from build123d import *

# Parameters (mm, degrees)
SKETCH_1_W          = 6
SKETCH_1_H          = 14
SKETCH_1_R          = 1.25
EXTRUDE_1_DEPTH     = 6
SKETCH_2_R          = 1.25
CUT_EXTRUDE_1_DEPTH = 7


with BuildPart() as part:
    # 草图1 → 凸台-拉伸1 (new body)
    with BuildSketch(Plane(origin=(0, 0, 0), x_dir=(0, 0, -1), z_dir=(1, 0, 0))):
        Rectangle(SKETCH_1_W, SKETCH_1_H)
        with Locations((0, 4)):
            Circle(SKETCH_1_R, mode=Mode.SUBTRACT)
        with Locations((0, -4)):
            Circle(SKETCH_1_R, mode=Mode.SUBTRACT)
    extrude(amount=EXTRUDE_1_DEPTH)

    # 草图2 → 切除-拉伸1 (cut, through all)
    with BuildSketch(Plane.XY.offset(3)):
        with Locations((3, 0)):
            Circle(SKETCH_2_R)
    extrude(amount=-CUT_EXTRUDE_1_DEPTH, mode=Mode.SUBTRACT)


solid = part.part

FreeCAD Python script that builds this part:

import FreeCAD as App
import Part
import Sketcher
Q = App.Units.Quantity

doc = App.newDocument("Part")
body = doc.addObject("PartDesign::Body", "Body")

sketch1 = body.newObject("Sketcher::SketchObject", "Sketch")
sketch1.AttachmentSupport = (doc.getObject("YZ_Plane"), [""])
sketch1.MapMode = "FlatFace"
sketch1.addGeometry(Part.LineSegment(App.Vector(7, 3, 0), App.Vector(-7, 3, 0)), False)
sketch1.addGeometry(Part.LineSegment(App.Vector(-7, 3, 0), App.Vector(-7, -3, 0)), False)
sketch1.addGeometry(Part.LineSegment(App.Vector(-7, -3, 0), App.Vector(7, -3, 0)), False)
sketch1.addGeometry(Part.LineSegment(App.Vector(7, -3, 0), App.Vector(7, 3, 0)), False)
sketch1.addGeometry(Part.Circle(App.Vector(-4, 0, 0), App.Vector(0, 0, 1), 1.2), False)
sketch1.addGeometry(Part.Circle(App.Vector(4, 0, 0), App.Vector(0, 0, 1), 1.2), False)
sketch1.addConstraint(Sketcher.Constraint("Coincident", 0, 2, 1, 1))
sketch1.addConstraint(Sketcher.Constraint("Coincident", 1, 2, 2, 1))
sketch1.addConstraint(Sketcher.Constraint("Coincident", 2, 2, 3, 1))
sketch1.addConstraint(Sketcher.Constraint("Coincident", 3, 2, 0, 1))
sketch1.addConstraint(Sketcher.Constraint("Horizontal", 0))
sketch1.addConstraint(Sketcher.Constraint("Vertical", 1))
sketch1.addConstraint(Sketcher.Constraint("Horizontal", 2))
sketch1.addConstraint(Sketcher.Constraint("Vertical", 3))
sketch1.addConstraint(Sketcher.Constraint("Equal", 4, 5))
sketch1.addConstraint(Sketcher.Constraint("Symmetric", 4, 3, 5, 3, -1, 1))
sketch1.addConstraint(Sketcher.Constraint("Symmetric", 0, 2, 2, 2, -1, 1))
sketch1.addConstraint(Sketcher.Constraint("PointOnObject", 4, 3, -1))
sketch1.addConstraint(Sketcher.Constraint("Diameter", 4, Q("2.5 mm")))
sketch1.addConstraint(Sketcher.Constraint("DistanceX", 0, 2, 0, 1, Q("14 mm")))
sketch1.addConstraint(Sketcher.Constraint("DistanceY", 1, 2, 1, 1, Q("6 mm")))
sketch1.addConstraint(Sketcher.Constraint("DistanceX", 4, 3, -1, 1, Q("4 mm")))
pad1 = body.newObject("PartDesign::Pad", "Pad")
pad1.Profile = sketch1
pad1.Length = 6

sketch2 = body.newObject("Sketcher::SketchObject", "Sketch001")
sketch2.AttachmentSupport = (doc.getObject("XY_Plane"), [""])
sketch2.MapMode = "FlatFace"
sketch2.AttachmentOffset = App.Placement(App.Vector(0, 0, 3), App.Rotation())
sketch2.addGeometry(Part.Circle(App.Vector(3, 0, 0), App.Vector(0, 0, 1), 1.2), False)
sketch2.addConstraint(Sketcher.Constraint("PointOnObject", 0, 3, -1))
sketch2.addConstraint(Sketcher.Constraint("Diameter", 0, Q("2.5 mm")))
sketch2.addConstraint(Sketcher.Constraint("DistanceX", -1, 1, 0, 3, Q("3 mm")))
pocket1 = body.newObject("PartDesign::Pocket", "Pocket")
pocket1.Profile = sketch2
pocket1.Type = "ThroughAll"

doc.recompute()
